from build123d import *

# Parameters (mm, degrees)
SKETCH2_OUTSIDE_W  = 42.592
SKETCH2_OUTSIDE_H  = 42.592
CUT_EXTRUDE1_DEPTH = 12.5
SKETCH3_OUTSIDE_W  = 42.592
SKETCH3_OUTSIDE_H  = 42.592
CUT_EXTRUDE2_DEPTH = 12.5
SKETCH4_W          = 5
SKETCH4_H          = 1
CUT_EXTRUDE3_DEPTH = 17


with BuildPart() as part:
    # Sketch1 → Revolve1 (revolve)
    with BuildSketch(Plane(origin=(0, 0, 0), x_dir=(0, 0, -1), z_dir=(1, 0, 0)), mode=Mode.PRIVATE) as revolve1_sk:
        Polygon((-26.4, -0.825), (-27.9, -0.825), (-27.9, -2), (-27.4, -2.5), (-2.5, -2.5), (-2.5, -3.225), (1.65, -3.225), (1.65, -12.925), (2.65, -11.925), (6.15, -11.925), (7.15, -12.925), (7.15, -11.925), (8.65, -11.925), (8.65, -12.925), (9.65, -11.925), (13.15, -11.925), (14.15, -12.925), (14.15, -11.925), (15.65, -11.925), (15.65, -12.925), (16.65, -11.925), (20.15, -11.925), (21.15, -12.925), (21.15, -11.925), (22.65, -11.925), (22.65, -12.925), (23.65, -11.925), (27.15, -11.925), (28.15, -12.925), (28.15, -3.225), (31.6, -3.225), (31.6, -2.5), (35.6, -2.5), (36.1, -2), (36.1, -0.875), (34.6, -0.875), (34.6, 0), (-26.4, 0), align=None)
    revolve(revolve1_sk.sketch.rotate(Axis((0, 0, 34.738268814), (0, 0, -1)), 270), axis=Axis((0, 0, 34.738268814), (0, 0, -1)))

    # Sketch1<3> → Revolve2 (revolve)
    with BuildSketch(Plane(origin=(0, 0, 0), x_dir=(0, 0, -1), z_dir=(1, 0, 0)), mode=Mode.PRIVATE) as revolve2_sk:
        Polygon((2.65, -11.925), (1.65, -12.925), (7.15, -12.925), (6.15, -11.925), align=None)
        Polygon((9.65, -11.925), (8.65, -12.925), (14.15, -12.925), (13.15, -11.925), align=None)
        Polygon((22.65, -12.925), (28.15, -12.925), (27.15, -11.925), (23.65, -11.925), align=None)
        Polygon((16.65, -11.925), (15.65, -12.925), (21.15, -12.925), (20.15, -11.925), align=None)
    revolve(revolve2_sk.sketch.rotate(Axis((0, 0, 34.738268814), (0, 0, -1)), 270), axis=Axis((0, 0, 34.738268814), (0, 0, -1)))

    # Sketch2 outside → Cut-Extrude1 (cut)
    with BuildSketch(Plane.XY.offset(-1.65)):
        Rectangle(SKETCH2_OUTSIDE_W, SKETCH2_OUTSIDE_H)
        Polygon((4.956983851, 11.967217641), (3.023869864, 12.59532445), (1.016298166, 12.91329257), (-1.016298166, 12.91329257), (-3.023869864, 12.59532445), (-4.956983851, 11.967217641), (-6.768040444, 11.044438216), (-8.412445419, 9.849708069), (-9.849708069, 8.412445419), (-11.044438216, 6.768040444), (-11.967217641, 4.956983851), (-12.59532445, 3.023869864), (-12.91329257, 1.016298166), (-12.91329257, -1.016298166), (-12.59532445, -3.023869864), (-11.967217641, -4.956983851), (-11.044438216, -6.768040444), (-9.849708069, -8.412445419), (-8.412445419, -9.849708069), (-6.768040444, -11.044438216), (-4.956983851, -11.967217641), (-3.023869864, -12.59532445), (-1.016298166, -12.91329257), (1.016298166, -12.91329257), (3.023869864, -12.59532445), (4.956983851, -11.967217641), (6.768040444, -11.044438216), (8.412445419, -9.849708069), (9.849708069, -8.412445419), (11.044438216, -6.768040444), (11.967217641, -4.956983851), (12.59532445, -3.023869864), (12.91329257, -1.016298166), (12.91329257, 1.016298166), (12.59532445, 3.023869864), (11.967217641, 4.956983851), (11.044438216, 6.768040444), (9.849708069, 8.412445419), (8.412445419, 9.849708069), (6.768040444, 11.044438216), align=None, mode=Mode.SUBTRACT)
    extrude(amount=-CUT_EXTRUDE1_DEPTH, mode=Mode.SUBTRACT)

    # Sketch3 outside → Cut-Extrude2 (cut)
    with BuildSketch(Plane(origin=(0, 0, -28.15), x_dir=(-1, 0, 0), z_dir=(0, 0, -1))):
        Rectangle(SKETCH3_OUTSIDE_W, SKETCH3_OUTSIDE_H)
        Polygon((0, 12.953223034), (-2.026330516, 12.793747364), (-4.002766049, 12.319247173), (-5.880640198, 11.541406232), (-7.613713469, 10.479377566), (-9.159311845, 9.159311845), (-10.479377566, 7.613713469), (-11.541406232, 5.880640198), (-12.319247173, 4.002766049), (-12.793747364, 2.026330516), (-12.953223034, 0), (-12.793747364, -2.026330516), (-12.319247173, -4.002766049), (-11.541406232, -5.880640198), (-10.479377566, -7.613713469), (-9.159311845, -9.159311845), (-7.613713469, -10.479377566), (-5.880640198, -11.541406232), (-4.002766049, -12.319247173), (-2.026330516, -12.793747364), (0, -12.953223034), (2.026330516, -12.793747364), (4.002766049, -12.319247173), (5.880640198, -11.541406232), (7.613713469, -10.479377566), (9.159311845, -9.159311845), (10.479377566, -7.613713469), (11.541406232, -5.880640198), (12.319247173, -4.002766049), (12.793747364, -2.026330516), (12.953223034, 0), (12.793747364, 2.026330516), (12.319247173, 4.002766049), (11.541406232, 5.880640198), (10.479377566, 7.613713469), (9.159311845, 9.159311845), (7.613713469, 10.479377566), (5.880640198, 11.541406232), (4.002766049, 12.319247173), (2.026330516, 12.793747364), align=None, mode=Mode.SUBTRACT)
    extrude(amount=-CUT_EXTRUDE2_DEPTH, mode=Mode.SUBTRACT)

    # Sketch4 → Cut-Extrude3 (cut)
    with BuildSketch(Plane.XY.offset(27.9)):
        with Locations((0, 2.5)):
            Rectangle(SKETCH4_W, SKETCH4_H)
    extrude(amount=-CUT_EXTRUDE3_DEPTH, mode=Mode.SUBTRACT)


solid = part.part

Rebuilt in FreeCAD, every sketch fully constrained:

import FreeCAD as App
import Part
import Sketcher

V = App.Vector
Q = App.Units.Quantity

doc = App.newDocument("Part")
body = doc.addObject("PartDesign::Body", "Body")

sketch1 = doc.addObject("Sketcher::SketchObject", "Sketch")
body.addObject(sketch1)
sketch1.AttachmentSupport = (doc.YZ_Plane, [""])
sketch1.MapMode = "FlatFace"
sketch1.addGeometry([
    Part.LineSegment(V(-0.8, 26.4, 0), V(-0.8, 27.9, 0)),
    Part.LineSegment(V(-0.8, 27.9, 0), V(-2, 27.9, 0)),
    Part.LineSegment(V(-2, 27.9, 0), V(-2.5, 27.4, 0)),
    Part.LineSegment(V(-2.5, 27.4, 0), V(-2.5, 2.5, 0)),
    Part.LineSegment(V(-2.5, 2.5, 0), V(-3.2, 2.5, 0)),
    Part.LineSegment(V(-3.2, 2.5, 0), V(-3.2, -1.6, 0)),
    Part.LineSegment(V(-3.2, -1.6, 0), V(-12.9, -1.6, 0)),
    Part.LineSegment(V(-12.9, -1.6, 0), V(-11.9, -2.6, 0)),
    Part.LineSegment(V(-11.9, -2.6, 0), V(-11.9, -6.2, 0)),
    Part.LineSegment(V(-11.9, -6.2, 0), V(-12.9, -7.2, 0)),
    Part.LineSegment(V(-12.9, -7.2, 0), V(-11.9, -7.2, 0)),
    Part.LineSegment(V(-11.9, -7.2, 0), V(-11.9, -8.7, 0)),
    Part.LineSegment(V(-11.9, -8.7, 0), V(-12.9, -8.7, 0)),
    Part.LineSegment(V(-12.9, -8.7, 0), V(-11.9, -9.7, 0)),
    Part.LineSegment(V(-11.9, -9.7, 0), V(-11.9, -13.2, 0)),
    Part.LineSegment(V(-11.9, -13.2, 0), V(-12.9, -14.2, 0)),
    Part.LineSegment(V(-12.9, -14.2, 0), V(-11.9, -14.2, 0)),
    Part.LineSegment(V(-11.9, -14.2, 0), V(-11.9, -15.7, 0)),
    Part.LineSegment(V(-11.9, -15.7, 0), V(-12.9, -15.7, 0)),
    Part.LineSegment(V(-12.9, -15.7, 0), V(-11.9, -16.6, 0)),
    Part.LineSegment(V(-11.9, -16.6, 0), V(-11.9, -20.1, 0)),
    Part.LineSegment(V(-11.9, -20.1, 0), V(-12.9, -21.1, 0)),
    Part.LineSegment(V(-12.9, -21.1, 0), V(-11.9, -21.1, 0)),
    Part.LineSegment(V(-11.9, -21.1, 0), V(-11.9, -22.6, 0)),
    Part.LineSegment(V(-11.9, -22.6, 0), V(-12.9, -22.6, 0)),
    Part.LineSegment(V(-12.9, -22.6, 0), V(-11.9, -23.6, 0)),
    Part.LineSegment(V(-11.9, -23.6, 0), V(-11.9, -27.1, 0)),
    Part.LineSegment(V(-11.9, -27.1, 0), V(-12.9, -28.1, 0)),
    Part.LineSegment(V(-12.9, -28.1, 0), V(-3.2, -28.1, 0)),
    Part.LineSegment(V(-3.2, -28.1, 0), V(-3.2, -31.6, 0)),
    Part.LineSegment(V(-3.2, -31.6, 0), V(-2.5, -31.6, 0)),
    Part.LineSegment(V(-2.5, -31.6, 0), V(-2.5, -35.6, 0)),
    Part.LineSegment(V(-2.5, -35.6, 0), V(-2, -36.1, 0)),
    Part.LineSegment(V(-2, -36.1, 0), V(-0.9, -36.1, 0)),
    Part.LineSegment(V(-0.9, -36.1, 0), V(-0.9, -34.6, 0)),
    Part.LineSegment(V(-0.9, -34.6, 0), V(0, -34.6, 0)),
    Part.LineSegment(V(0, -34.6, 0), V(0, 26.4, 0)),
    Part.LineSegment(V(0, 26.4, 0), V(-0.8, 26.4, 0)),
], False)
sketch1.addConstraint([
    Sketcher.Constraint("Coincident", 0, 2, 1, 1),
    Sketcher.Constraint("Coincident", 1, 2, 2, 1),
    Sketcher.Constraint("Coincident", 2, 2, 3, 1),
    Sketcher.Constraint("Coincident", 3, 2, 4, 1),
    Sketcher.Constraint("Coincident", 4, 2, 5, 1),
    Sketcher.Constraint("Coincident", 5, 2, 6, 1),
    Sketcher.Constraint("Coincident", 6, 2, 7, 1),
    Sketcher.Constraint("Coincident", 7, 2, 8, 1),
    Sketcher.Constraint("Coincident", 8, 2, 9, 1),
    Sketcher.Constraint("Coincident", 9, 2, 10, 1),
    Sketcher.Constraint("Coincident", 10, 2, 11, 1),
    Sketcher.Constraint("Coincident", 11, 2, 12, 1),
    Sketcher.Constraint("Coincident", 12, 2, 13, 1),
    Sketcher.Constraint("Coincident", 13, 2, 14, 1),
    Sketcher.Constraint("Coincident", 14, 2, 15, 1),
    Sketcher.Constraint("Coincident", 15, 2, 16, 1),
    Sketcher.Constraint("Coincident", 16, 2, 17, 1),
    Sketcher.Constraint("Coincident", 17, 2, 18, 1),
    Sketcher.Constraint("Coincident", 18, 2, 19, 1),
    Sketcher.Constraint("Coincident", 19, 2, 20, 1),
    Sketcher.Constraint("Coincident", 20, 2, 21, 1),
    Sketcher.Constraint("Coincident", 21, 2, 22, 1),
    Sketcher.Constraint("Coincident", 22, 2, 23, 1),
    Sketcher.Constraint("Coincident", 23, 2, 24, 1),
    Sketcher.Constraint("Coincident", 24, 2, 25, 1),
    Sketcher.Constraint("Coincident", 25, 2, 26, 1),
    Sketcher.Constraint("Coincident", 26, 2, 27, 1),
    Sketcher.Constraint("Coincident", 27, 2, 28, 1),
    Sketcher.Constraint("Coincident", 28, 2, 29, 1),
    Sketcher.Constraint("Coincident", 29, 2, 30, 1),
    Sketcher.Constraint("Coincident", 30, 2, 31, 1),
    Sketcher.Constraint("Coincident", 31, 2, 32, 1),
    Sketcher.Constraint("Coincident", 32, 2, 33, 1),
    Sketcher.Constraint("Coincident", 33, 2, 34, 1),
    Sketcher.Constraint("Coincident", 34, 2, 35, 1),
    Sketcher.Constraint("Coincident", 35, 2, 36, 1),
    Sketcher.Constraint("Coincident", 36, 2, 37, 1),
    Sketcher.Constraint("Coincident", 37, 2, 0, 1),
    Sketcher.Constraint("Vertical", 0),
    Sketcher.Constraint("Horizontal", 1),
    Sketcher.Constraint("Vertical", 3),
    Sketcher.Constraint("Horizontal", 4),
    Sketcher.Constraint("Vertical", 5),
    Sketcher.Constraint("Horizontal", 6),
    Sketcher.Constraint("Vertical", 8),
    Sketcher.Constraint("Horizontal", 10),
    Sketcher.Constraint("Vertical", 11),
    Sketcher.Constraint("Horizontal", 12),
    Sketcher.Constraint("Vertical", 14),
    Sketcher.Constraint("Horizontal", 16),
    Sketcher.Constraint("Vertical", 17),
    Sketcher.Constraint("Horizontal", 18),
    Sketcher.Constraint("Vertical", 20),
    Sketcher.Constraint("Horizontal", 22),
    Sketcher.Constraint("Vertical", 23),
    Sketcher.Constraint("Horizontal", 24),
    Sketcher.Constraint("Vertical", 26),
    Sketcher.Constraint("Horizontal", 28),
    Sketcher.Constraint("Vertical", 29),
    Sketcher.Constraint("Horizontal", 30),
    Sketcher.Constraint("Vertical", 31),
    Sketcher.Constraint("Horizontal", 33),
    Sketcher.Constraint("Vertical", 34),
    Sketcher.Constraint("Horizontal", 35),
    Sketcher.Constraint("Vertical", 36),
    Sketcher.Constraint("Horizontal", 37),
    Sketcher.Constraint("PointOnObject", 35, 2, -2),
    Sketcher.Constraint("Perpendicular", 2, 7),
    Sketcher.Constraint("Perpendicular", 7, 9),
    Sketcher.Constraint("Perpendicular", 9, 13),
    Sketcher.Constraint("Perpendicular", 13, 15),
    Sketcher.Constraint("Perpendicular", 15, 19),
    Sketcher.Constraint("Perpendicular", 19, 21),
    Sketcher.Constraint("Perpendicular", 21, 25),
    Sketcher.Constraint("Perpendicular", 25, 27),
    Sketcher.Constraint("Perpendicular", 27, 32),
    Sketcher.Constraint("Vertical", 6, 2, 9, 2),
    Sketcher.Constraint("Vertical", 8, 2, 10, 2),
    Sketcher.Constraint("Vertical", 9, 2, 12, 2),
    Sketcher.Constraint("Vertical", 11, 2, 13, 2),
    Sketcher.Constraint("Vertical", 12, 2, 15, 2),
    Sketcher.Constraint("Vertical", 14, 2, 16, 2),
    Sketcher.Constraint("Vertical", 15, 2, 18, 2),
    Sketcher.Constraint("Vertical", 17, 2, 19, 2),
    Sketcher.Constraint("Vertical", 18, 2, 21, 2),
    Sketcher.Constraint("Vertical", 20, 2, 22, 2),
    Sketcher.Constraint("Vertical", 21, 2, 24, 2),
    Sketcher.Constraint("Vertical", 23, 2, 25, 2),
    Sketcher.Constraint("Vertical", 24, 2, 27, 2),
    Sketcher.Constraint("Vertical", 5, 2, 28, 2),
    Sketcher.Constraint("Vertical", 3, 2, 30, 2),
    Sketcher.Constraint("Vertical", 1, 2, 32, 2),
    Sketcher.Constraint("Equal", 0, 11),
    Sketcher.Constraint("Equal", 8, 14),
    Sketcher.Constraint("Equal", 11, 17),
    Sketcher.Constraint("Equal", 14, 20),
    Sketcher.Constraint("Equal", 17, 23),
    Sketcher.Constraint("Equal", 20, 26),
    Sketcher.Constraint("Equal", 23, 34),
    Sketcher.Constraint("Equal", 7, 9),
    Sketcher.Constraint("DistanceX", 10, 1, 10, 2, Q("1 mm")),
    Sketcher.Constraint("DistanceY", 31, 2, 31, 1, Q("4 mm")),
    Sketcher.Constraint("DistanceY", 36, 1, 36, 2, Q("61 mm")),
    Sketcher.Constraint("DistanceX", 6, 2, 6, 1, Q("9.7 mm")),
    Sketcher.Constraint("DistanceY", 0, 1, 0, 2, Q("1.5 mm")),
    Sketcher.Constraint("DistanceY", 3, 2, 3, 1, Q("24.9 mm")),
    Sketcher.Constraint("DistanceY", 8, 2, 8, 1, Q("3.5 mm")),
    Sketcher.Constraint("DistanceX", 1, 2, -1, 1, Q("2 mm")),
    Sketcher.Constraint("DistanceY", 31, 2, 34, 2, Q("1 mm")),
    Sketcher.Constraint("DistanceY", 5, 2, 5, 1, Q("4.15 mm")),
    Sketcher.Constraint("DistanceY", -1, 1, 0, 2, Q("27.9 mm")),
    Sketcher.Constraint("DistanceX", 4, 2, 0, 2, Q("2.4 mm")),
    Sketcher.Constraint("DistanceX", 1, 2, 1, 1, Q("1.175 mm")),
    Sketcher.Constraint("DistanceX", 33, 1, 33, 2, Q("1.125 mm")),
])
revolution = doc.addObject("PartDesign::Revolution", "Revolution")
body.addObject(revolution)
revolution.Profile = sketch1
revolution.ReferenceAxis = (sketch1, ["V_Axis"])
revolution.Angle = 360

sketch2 = doc.addObject("Sketcher::SketchObject", "Sketch001")
body.addObject(sketch2)
sketch2.AttachmentSupport = (doc.YZ_Plane, [""])
sketch2.MapMode = "FlatFace"
sketch2.addGeometry([
    Part.LineSegment(V(-11.9, -2.6, 0), V(-12.9, -1.6, 0)),
    Part.LineSegment(V(-12.9, -1.6, 0), V(-12.9, -7.2, 0)),
    Part.LineSegment(V(-12.9, -7.2, 0), V(-11.9, -6.2, 0)),
    Part.LineSegment(V(-11.9, -6.2, 0), V(-11.9, -2.6, 0)),
    Part.LineSegment(V(-11.9, -9.7, 0), V(-12.9, -8.7, 0)),
    Part.LineSegment(V(-12.9, -8.7, 0), V(-12.9, -14.2, 0)),
    Part.LineSegment(V(-12.9, -14.2, 0), V(-11.9, -13.2, 0)),
    Part.LineSegment(V(-11.9, -13.2, 0), V(-11.9, -9.7, 0)),
    Part.LineSegment(V(-12.9, -22.6, 0), V(-12.9, -28.1, 0)),
    Part.LineSegment(V(-12.9, -28.1, 0), V(-11.9, -27.1, 0)),
    Part.LineSegment(V(-11.9, -27.1, 0), V(-11.9, -23.6, 0)),
    Part.LineSegment(V(-11.9, -23.6, 0), V(-12.9, -22.6, 0)),
    Part.LineSegment(V(-11.9, -16.6, 0), V(-12.9, -15.7, 0)),
    Part.LineSegment(V(-12.9, -15.7, 0), V(-12.9, -21.1, 0)),
    Part.LineSegment(V(-12.9, -21.1, 0), V(-11.9, -20.1, 0)),
    Part.LineSegment(V(-11.9, -20.1, 0), V(-11.9, -16.6, 0)),
], False)
sketch2.addConstraint([
    Sketcher.Constraint("Coincident", 0, 2, 1, 1),
    Sketcher.Constraint("Coincident", 1, 2, 2, 1),
    Sketcher.Constraint("Coincident", 2, 2, 3, 1),
    Sketcher.Constraint("Coincident", 3, 2, 0, 1),
    Sketcher.Constraint("Coincident", 4, 2, 5, 1),
    Sketcher.Constraint("Coincident", 5, 2, 6, 1),
    Sketcher.Constraint("Coincident", 6, 2, 7, 1),
    Sketcher.Constraint("Coincident", 7, 2, 4, 1),
    Sketcher.Constraint("Coincident", 8, 2, 9, 1),
    Sketcher.Constraint("Coincident", 9, 2, 10, 1),
    Sketcher.Constraint("Coincident", 10, 2, 11, 1),
    Sketcher.Constraint("Coincident", 11, 2, 8, 1),
    Sketcher.Constraint("Coincident", 12, 2, 13, 1),
    Sketcher.Constraint("Coincident", 13, 2, 14, 1),
    Sketcher.Constraint("Coincident", 14, 2, 15, 1),
    Sketcher.Constraint("Coincident", 15, 2, 12, 1),
    Sketcher.Constraint("Vertical", 1),
    Sketcher.Constraint("Vertical", 3),
    Sketcher.Constraint("Vertical", 5),
    Sketcher.Constraint("Vertical", 7),
    Sketcher.Constraint("Vertical", 8),
    Sketcher.Constraint("Vertical", 10),
    Sketcher.Constraint("Vertical", 13),
    Sketcher.Constraint("Vertical", 15),
    Sketcher.Constraint("Perpendicular", 0, 2),
    Sketcher.Constraint("Perpendicular", 2, 4),
    Sketcher.Constraint("Perpendicular", 4, 6),
    Sketcher.Constraint("Parallel", 6, 9),
    Sketcher.Constraint("Perpendicular", 9, 11),
    Sketcher.Constraint("Parallel", 11, 12),
    Sketcher.Constraint("Perpendicular", 12, 14),
    Sketcher.Constraint("Vertical", 1, 2, 4, 2),
    Sketcher.Constraint("Vertical", 3, 2, 6, 2),
    Sketcher.Constraint("Vertical", 5, 2, 8, 2),
    Sketcher.Constraint("Vertical", 7, 2, 9, 2),
    Sketcher.Constraint("Vertical", 11, 2, 12, 2),
    Sketcher.Constraint("Vertical", 10, 2, 14, 2),
    Sketcher.Constraint("Equal", 1, 5),
    Sketcher.Constraint("Equal", 5, 8),
    Sketcher.Constraint("Equal", 8, 13),
    Sketcher.Constraint("Equal", 0, 2),
    Sketcher.Constraint("DistanceY", 1, 2, 1, 1, Q("5.5 mm")),
    Sketcher.Constraint("DistanceY", 3, 1, 3, 2, Q("3.5 mm")),
    Sketcher.Constraint("DistanceY", 4, 2, 3, 2, Q("6 mm")),
    Sketcher.Constraint("DistanceY", 8, 2, 5, 2, Q("14 mm")),
    Sketcher.Constraint("DistanceY", 12, 2, 7, 2, Q("6 mm")),
    Sketcher.Constraint("DistanceY", 0, 2, -1, 1, Q("1.65 mm")),
    Sketcher.Constraint("DistanceX", 0, 2, -1, 1, Q("12.925 mm")),
])
revolution2 = doc.addObject("PartDesign::Revolution", "Revolution001")
body.addObject(revolution2)
revolution2.Profile = sketch2
revolution2.ReferenceAxis = (sketch2, ["V_Axis"])
revolution2.Angle = 360

sketch3 = doc.addObject("Sketcher::SketchObject", "Sketch002")
body.addObject(sketch3)
sketch3.AttachmentSupport = (doc.XY_Plane, [""])
sketch3.MapMode = "FlatFace"
sketch3.AttachmentOffset = App.Placement(V(0, 0, -1.65), App.Rotation())
sketch3.addGeometry([
    Part.LineSegment(V(-21.3, 21.3, 0), V(-21.3, -21.3, 0)),
    Part.LineSegment(V(-21.3, -21.3, 0), V(21.3, -21.3, 0)),
    Part.LineSegment(V(21.3, -21.3, 0), V(21.3, 21.3, 0)),
    Part.LineSegment(V(21.3, 21.3, 0), V(-21.3, 21.3, 0)),
    Part.LineSegment(V(3, 12.6, 0), V(5, 12, 0)),
    Part.LineSegment(V(5, 12, 0), V(6.8, 11, 0)),
    Part.LineSegment(V(6.8, 11, 0), V(8.4, 9.8, 0)),
    Part.LineSegment(V(8.4, 9.8, 0), V(9.8, 8.4, 0)),
    Part.LineSegment(V(9.8, 8.4, 0), V(11, 6.8, 0)),
    Part.LineSegment(V(11, 6.8, 0), V(12, 5, 0)),
    Part.LineSegment(V(12, 5, 0), V(12.6, 3, 0)),
    Part.LineSegment(V(12.6, 3, 0), V(12.9, 1, 0)),
    Part.LineSegment(V(12.9, 1, 0), V(12.9, -1, 0)),
    Part.LineSegment(V(12.9, -1, 0), V(12.6, -3, 0)),
    Part.LineSegment(V(12.6, -3, 0), V(12, -5, 0)),
    Part.LineSegment(V(12, -5, 0), V(11, -6.8, 0)),
    Part.LineSegment(V(11, -6.8, 0), V(9.8, -8.4, 0)),
    Part.LineSegment(V(9.8, -8.4, 0), V(8.4, -9.8, 0)),
    Part.LineSegment(V(8.4, -9.8, 0), V(6.8, -11, 0)),
    Part.LineSegment(V(6.8, -11, 0), V(5, -12, 0)),
    Part.LineSegment(V(5, -12, 0), V(3, -12.6, 0)),
    Part.LineSegment(V(3, -12.6, 0), V(1, -12.9, 0)),
    Part.LineSegment(V(1, -12.9, 0), V(-1, -12.9, 0)),
    Part.LineSegment(V(-1, -12.9, 0), V(-3, -12.6, 0)),
    Part.LineSegment(V(-3, -12.6, 0), V(-5, -12, 0)),
    Part.LineSegment(V(-5, -12, 0), V(-6.8, -11, 0)),
    Part.LineSegment(V(-6.8, -11, 0), V(-8.4, -9.8, 0)),
    Part.LineSegment(V(-8.4, -9.8, 0), V(-9.8, -8.4, 0)),
    Part.LineSegment(V(-9.8, -8.4, 0), V(-11, -6.8, 0)),
    Part.LineSegment(V(-11, -6.8, 0), V(-12, -5, 0)),
    Part.LineSegment(V(-12, -5, 0), V(-12.6, -3, 0)),
    Part.LineSegment(V(-12.6, -3, 0), V(-12.9, -1, 0)),
    Part.LineSegment(V(-12.9, -1, 0), V(-12.9, 1, 0)),
    Part.LineSegment(V(-12.9, 1, 0), V(-12.6, 3, 0)),
    Part.LineSegment(V(-12.6, 3, 0), V(-12, 5, 0)),
    Part.LineSegment(V(-12, 5, 0), V(-11, 6.8, 0)),
    Part.LineSegment(V(-11, 6.8, 0), V(-9.8, 8.4, 0)),
    Part.LineSegment(V(-9.8, 8.4, 0), V(-8.4, 9.8, 0)),
    Part.LineSegment(V(-8.4, 9.8, 0), V(-6.8, 11, 0)),
    Part.LineSegment(V(-6.8, 11, 0), V(-5, 12, 0)),
    Part.LineSegment(V(-5, 12, 0), V(-3, 12.6, 0)),
    Part.LineSegment(V(-3, 12.6, 0), V(-1, 12.9, 0)),
    Part.LineSegment(V(-1, 12.9, 0), V(1, 12.9, 0)),
    Part.LineSegment(V(1, 12.9, 0), V(3, 12.6, 0)),
], False)
sketch3.addConstraint([
    Sketcher.Constraint("Coincident", 0, 2, 1, 1),
    Sketcher.Constraint("Coincident", 1, 2, 2, 1),
    Sketcher.Constraint("Coincident", 2, 2, 3, 1),
    Sketcher.Constraint("Coincident", 3, 2, 0, 1),
    Sketcher.Constraint("Coincident", 4, 2, 5, 1),
    Sketcher.Constraint("Coincident", 5, 2, 6, 1),
    Sketcher.Constraint("Coincident", 6, 2, 7, 1),
    Sketcher.Constraint("Coincident", 7, 2, 8, 1),
    Sketcher.Constraint("Coincident", 8, 2, 9, 1),
    Sketcher.Constraint("Coincident", 9, 2, 10, 1),
    Sketcher.Constraint("Coincident", 10, 2, 11, 1),
    Sketcher.Constraint("Coincident", 11, 2, 12, 1),
    Sketcher.Constraint("Coincident", 12, 2, 13, 1),
    Sketcher.Constraint("Coincident", 13, 2, 14, 1),
    Sketcher.Constraint("Coincident", 14, 2, 15, 1),
    Sketcher.Constraint("Coincident", 15, 2, 16, 1),
    Sketcher.Constraint("Coincident", 16, 2, 17, 1),
    Sketcher.Constraint("Coincident", 17, 2, 18, 1),
    Sketcher.Constraint("Coincident", 18, 2, 19, 1),
    Sketcher.Constraint("Coincident", 19, 2, 20, 1),
    Sketcher.Constraint("Coincident", 20, 2, 21, 1),
    Sketcher.Constraint("Coincident", 21, 2, 22, 1),
    Sketcher.Constraint("Coincident", 22, 2, 23, 1),
    Sketcher.Constraint("Coincident", 23, 2, 24, 1),
    Sketcher.Constraint("Coincident", 24, 2, 25, 1),
    Sketcher.Constraint("Coincident", 25, 2, 26, 1),
    Sketcher.Constraint("Coincident", 26, 2, 27, 1),
    Sketcher.Constraint("Coincident", 27, 2, 28, 1),
    Sketcher.Constraint("Coincident", 28, 2, 29, 1),
    Sketcher.Constraint("Coincident", 29, 2, 30, 1),
    Sketcher.Constraint("Coincident", 30, 2, 31, 1),
    Sketcher.Constraint("Coincident", 31, 2, 32, 1),
    Sketcher.Constraint("Coincident", 32, 2, 33, 1),
    Sketcher.Constraint("Coincident", 33, 2, 34, 1),
    Sketcher.Constraint("Coincident", 34, 2, 35, 1),
    Sketcher.Constraint("Coincident", 35, 2, 36, 1),
    Sketcher.Constraint("Coincident", 36, 2, 37, 1),
    Sketcher.Constraint("Coincident", 37, 2, 38, 1),
    Sketcher.Constraint("Coincident", 38, 2, 39, 1),
    Sketcher.Constraint("Coincident", 39, 2, 40, 1),
    Sketcher.Constraint("Coincident", 40, 2, 41, 1),
    Sketcher.Constraint("Coincident", 41, 2, 42, 1),
    Sketcher.Constraint("Coincident", 42, 2, 43, 1),
    Sketcher.Constraint("Coincident", 43, 2, 4, 1),
    Sketcher.Constraint("Vertical", 0),
    Sketcher.Constraint("Horizontal", 1),
    Sketcher.Constraint("Vertical", 2),
    Sketcher.Constraint("Horizontal", 3),
    Sketcher.Constraint("Vertical", 12),
    Sketcher.Constraint("Horizontal", 22),
    Sketcher.Constraint("Vertical", 32),
    Sketcher.Constraint("Horizontal", 42),
    Sketcher.Constraint("Symmetric", 0, 2, 2, 2, -1, 1),
    Sketcher.Constraint("Symmetric", 4, 2, 24, 2, -1, 1),
    Sketcher.Constraint("Symmetric", 5, 2, 25, 2, -1, 1),
    Sketcher.Constraint("Symmetric", 6, 2, 26, 2, -1, 1),
    Sketcher.Constraint("Symmetric", 7, 2, 27, 2, -1, 1),
    Sketcher.Constraint("Symmetric", 8, 2, 28, 2, -1, 1),
    Sketcher.Constraint("Symmetric", 9, 2, 29, 2, -1, 1),
    Sketcher.Constraint("Symmetric", 10, 2, 30, 2, -1, 1),
    Sketcher.Constraint("Symmetric", 11, 2, 31, 2, -1, 1),
    Sketcher.Constraint("Symmetric", 13, 2, 33, 2, -1, 1),
    Sketcher.Constraint("Symmetric", 14, 2, 34, 2, -1, 1),
    Sketcher.Constraint("Symmetric", 15, 2, 35, 2, -1, 1),
    Sketcher.Constraint("Symmetric", 16, 2, 36, 2, -1, 1),
    Sketcher.Constraint("Symmetric", 17, 2, 37, 2, -1, 1),
    Sketcher.Constraint("Symmetric", 18, 2, 38, 2, -1, 1),
    Sketcher.Constraint("Symmetric", 19, 2, 39, 2, -1, 1),
    Sketcher.Constraint("Symmetric", 20, 2, 40, 2, -1, 1),
    Sketcher.Constraint("Symmetric", 21, 2, 41, 2, -1, 1),
    Sketcher.Constraint("Symmetric", 23, 2, 43, 2, -1, 1),
    Sketcher.Constraint("Symmetric", 20, 2, 23, 2, -2),
    Sketcher.Constraint("Symmetric", 19, 2, 24, 2, -2),
    Sketcher.Constraint("Symmetric", 18, 2, 25, 2, -2),
    Sketcher.Constraint("Symmetric", 17, 2, 26, 2, -2),
    Sketcher.Constraint("Symmetric", 16, 2, 27, 2, -2),
    Sketcher.Constraint("Symmetric", 15, 2, 28, 2, -2),
    Sketcher.Constraint("Symmetric", 14, 2, 29, 2, -2),
    Sketcher.Constraint("Symmetric", 13, 2, 30, 2, -2),
    Sketcher.Constraint("Perpendicular", 4, 14),
    Sketcher.Constraint("Perpendicular", 5, 15),
    Sketcher.Constraint("Perpendicular", 6, 16),
    Sketcher.Constraint("Perpendicular", 7, 17),
    Sketcher.Constraint("Perpendicular", 11, 21),
    Sketcher.Constraint("Perpendicular", 13, 23),
    Sketcher.Constraint("Perpendicular", 23, 33),
    Sketcher.Constraint("Perpendicular", 33, 43),
    Sketcher.Constraint("Horizontal", 12, 2, 31, 2),
    Sketcher.Constraint("Equal", 3, 0),
    Sketcher.Constraint("Equal", 42, 12),
    Sketcher.Constraint("Equal", 4, 5),
    Sketcher.Constraint("Equal", 5, 6),
    Sketcher.Constraint("Equal", 6, 7),
    Sketcher.Constraint("Equal", 7, 8),
    Sketcher.Constraint("Equal", 8, 9),
    Sketcher.Constraint("Equal", 9, 10),
    Sketcher.Constraint("Equal", 10, 11),
    Sketcher.Constraint("Equal", 20, 21),
    Sketcher.Constraint("Angle", 4, Q("-18 deg")),
    Sketcher.Constraint("Angle", 5, Q("-27 deg")),
    Sketcher.Constraint("Angle", 6, Q("-36 deg")),
    Sketcher.Constraint("Angle", 11, Q("-81 deg")),
    Sketcher.Constraint("DistanceX", 1, 1, 1, 2, Q("42.592 mm")),
    Sketcher.Constraint("DistanceY", -1, 1, 11, 2, Q("1.016298 mm")),
    Sketcher.Constraint("DistanceX", -1, 1, 5, 2, Q("6.76804 mm")),
])
pocket1 = doc.addObject("PartDesign::Pocket", "Pocket")
body.addObject(pocket1)
pocket1.Profile = sketch3
pocket1.Length = 12.5

sketch4 = doc.addObject("Sketcher::SketchObject", "Sketch003")
body.addObject(sketch4)
sketch4.AttachmentSupport = (doc.XY_Plane, [""])
sketch4.MapMode = "FlatFace"
sketch4.AttachmentOffset = App.Placement(V(0, 0, -28.15), App.Rotation())
sketch4.addGeometry([
    Part.LineSegment(V(21.3, 21.3, 0), V(21.3, -21.3, 0)),
    Part.LineSegment(V(21.3, -21.3, 0), V(-21.3, -21.3, 0)),
    Part.LineSegment(V(-21.3, -21.3, 0), V(-21.3, 21.3, 0)),
    Part.LineSegment(V(-21.3, 21.3, 0), V(21.3, 21.3, 0)),
    Part.LineSegment(V(2, 12.8, 0), V(0, 13, 0)),
    Part.LineSegment(V(0, 13, 0), V(-2, 12.8, 0)),
    Part.LineSegment(V(-2, 12.8, 0), V(-4, 12.3, 0)),
    Part.LineSegment(V(-4, 12.3, 0), V(-5.9, 11.5, 0)),
    Part.LineSegment(V(-5.9, 11.5, 0), V(-7.6, 10.5, 0)),
    Part.LineSegment(V(-7.6, 10.5, 0), V(-9.2, 9.2, 0)),
    Part.LineSegment(V(-9.2, 9.2, 0), V(-10.5, 7.6, 0)),
    Part.LineSegment(V(-10.5, 7.6, 0), V(-11.5, 5.9, 0)),
    Part.LineSegment(V(-11.5, 5.9, 0), V(-12.3, 4, 0)),
    Part.LineSegment(V(-12.3, 4, 0), V(-12.8, 2, 0)),
    Part.LineSegment(V(-12.8, 2, 0), V(-13, 0, 0)),
    Part.LineSegment(V(-13, 0, 0), V(-12.8, -2, 0)),
    Part.LineSegment(V(-12.8, -2, 0), V(-12.3, -4, 0)),
    Part.LineSegment(V(-12.3, -4, 0), V(-11.5, -5.9, 0)),
    Part.LineSegment(V(-11.5, -5.9, 0), V(-10.5, -7.6, 0)),
    Part.LineSegment(V(-10.5, -7.6, 0), V(-9.2, -9.2, 0)),
    Part.LineSegment(V(-9.2, -9.2, 0), V(-7.6, -10.5, 0)),
    Part.LineSegment(V(-7.6, -10.5, 0), V(-5.9, -11.5, 0)),
    Part.LineSegment(V(-5.9, -11.5, 0), V(-4, -12.3, 0)),
    Part.LineSegment(V(-4, -12.3, 0), V(-2, -12.8, 0)),
    Part.LineSegment(V(-2, -12.8, 0), V(0, -13, 0)),
    Part.LineSegment(V(0, -13, 0), V(2, -12.8, 0)),
    Part.LineSegment(V(2, -12.8, 0), V(4, -12.3, 0)),
    Part.LineSegment(V(4, -12.3, 0), V(5.9, -11.5, 0)),
    Part.LineSegment(V(5.9, -11.5, 0), V(7.6, -10.5, 0)),
    Part.LineSegment(V(7.6, -10.5, 0), V(9.2, -9.2, 0)),
    Part.LineSegment(V(9.2, -9.2, 0), V(10.5, -7.6, 0)),
    Part.LineSegment(V(10.5, -7.6, 0), V(11.5, -5.9, 0)),
    Part.LineSegment(V(11.5, -5.9, 0), V(12.3, -4, 0)),
    Part.LineSegment(V(12.3, -4, 0), V(12.8, -2, 0)),
    Part.LineSegment(V(12.8, -2, 0), V(13, 0, 0)),
    Part.LineSegment(V(13, 0, 0), V(12.8, 2, 0)),
    Part.LineSegment(V(12.8, 2, 0), V(12.3, 4, 0)),
    Part.LineSegment(V(12.3, 4, 0), V(11.5, 5.9, 0)),
    Part.LineSegment(V(11.5, 5.9, 0), V(10.5, 7.6, 0)),
    Part.LineSegment(V(10.5, 7.6, 0), V(9.2, 9.2, 0)),
    Part.LineSegment(V(9.2, 9.2, 0), V(7.6, 10.5, 0)),
    Part.LineSegment(V(7.6, 10.5, 0), V(5.9, 11.5, 0)),
    Part.LineSegment(V(5.9, 11.5, 0), V(4, 12.3, 0)),
    Part.LineSegment(V(4, 12.3, 0), V(2, 12.8, 0)),
], False)
sketch4.addConstraint([
    Sketcher.Constraint("Coincident", 0, 2, 1, 1),
    Sketcher.Constraint("Coincident", 1, 2, 2, 1),
    Sketcher.Constraint("Coincident", 2, 2, 3, 1),
    Sketcher.Constraint("Coincident", 3, 2, 0, 1),
    Sketcher.Constraint("Coincident", 4, 2, 5, 1),
    Sketcher.Constraint("Coincident", 5, 2, 6, 1),
    Sketcher.Constraint("Coincident", 6, 2, 7, 1),
    Sketcher.Constraint("Coincident", 7, 2, 8, 1),
    Sketcher.Constraint("Coincident", 8, 2, 9, 1),
    Sketcher.Constraint("Coincident", 9, 2, 10, 1),
    Sketcher.Constraint("Coincident", 10, 2, 11, 1),
    Sketcher.Constraint("Coincident", 11, 2, 12, 1),
    Sketcher.Constraint("Coincident", 12, 2, 13, 1),
    Sketcher.Constraint("Coincident", 13, 2, 14, 1),
    Sketcher.Constraint("Coincident", 14, 2, 15, 1),
    Sketcher.Constraint("Coincident", 15, 2, 16, 1),
    Sketcher.Constraint("Coincident", 16, 2, 17, 1),
    Sketcher.Constraint("Coincident", 17, 2, 18, 1),
    Sketcher.Constraint("Coincident", 18, 2, 19, 1),
    Sketcher.Constraint("Coincident", 19, 2, 20, 1),
    Sketcher.Constraint("Coincident", 20, 2, 21, 1),
    Sketcher.Constraint("Coincident", 21, 2, 22, 1),
    Sketcher.Constraint("Coincident", 22, 2, 23, 1),
    Sketcher.Constraint("Coincident", 23, 2, 24, 1),
    Sketcher.Constraint("Coincident", 24, 2, 25, 1),
    Sketcher.Constraint("Coincident", 25, 2, 26, 1),
    Sketcher.Constraint("Coincident", 26, 2, 27, 1),
    Sketcher.Constraint("Coincident", 27, 2, 28, 1),
    Sketcher.Constraint("Coincident", 28, 2, 29, 1),
    Sketcher.Constraint("Coincident", 29, 2, 30, 1),
    Sketcher.Constraint("Coincident", 30, 2, 31, 1),
    Sketcher.Constraint("Coincident", 31, 2, 32, 1),
    Sketcher.Constraint("Coincident", 32, 2, 33, 1),
    Sketcher.Constraint("Coincident", 33, 2, 34, 1),
    Sketcher.Constraint("Coincident", 34, 2, 35, 1),
    Sketcher.Constraint("Coincident", 35, 2, 36, 1),
    Sketcher.Constraint("Coincident", 36, 2, 37, 1),
    Sketcher.Constraint("Coincident", 37, 2, 38, 1),
    Sketcher.Constraint("Coincident", 38, 2, 39, 1),
    Sketcher.Constraint("Coincident", 39, 2, 40, 1),
    Sketcher.Constraint("Coincident", 40, 2, 41, 1),
    Sketcher.Constraint("Coincident", 41, 2, 42, 1),
    Sketcher.Constraint("Coincident", 42, 2, 43, 1),
    Sketcher.Constraint("Coincident", 43, 2, 4, 1),
    Sketcher.Constraint("Vertical", 0),
    Sketcher.Constraint("Horizontal", 1),
    Sketcher.Constraint("Vertical", 2),
    Sketcher.Constraint("Horizontal", 3),
    Sketcher.Constraint("Symmetric", 0, 2, 2, 2, -1, 1),
    Sketcher.Constraint("Symmetric", 4, 2, 24, 2, -1, 1),
    Sketcher.Constraint("Symmetric", 5, 2, 25, 2, -1, 1),
    Sketcher.Constraint("Symmetric", 6, 2, 26, 2, -1, 1),
    Sketcher.Constraint("Symmetric", 7, 2, 27, 2, -1, 1),
    Sketcher.Constraint("Symmetric", 8, 2, 28, 2, -1, 1),
    Sketcher.Constraint("Symmetric", 9, 2, 29, 2, -1, 1),
    Sketcher.Constraint("Symmetric", 10, 2, 30, 2, -1, 1),
    Sketcher.Constraint("Symmetric", 11, 2, 31, 2, -1, 1),
    Sketcher.Constraint("Symmetric", 12, 2, 32, 2, -1, 1),
    Sketcher.Constraint("Symmetric", 13, 2, 33, 2, -1, 1),
    Sketcher.Constraint("Symmetric", 14, 2, 34, 2, -1, 1),
    Sketcher.Constraint("Symmetric", 15, 2, 35, 2, -1, 1),
    Sketcher.Constraint("Symmetric", 16, 2, 36, 2, -1, 1),
    Sketcher.Constraint("Symmetric", 17, 2, 37, 2, -1, 1),
    Sketcher.Constraint("Symmetric", 18, 2, 38, 2, -1, 1),
    Sketcher.Constraint("Symmetric", 19, 2, 39, 2, -1, 1),
    Sketcher.Constraint("Symmetric", 20, 2, 40, 2, -1, 1),
    Sketcher.Constraint("Symmetric", 21, 2, 41, 2, -1, 1),
    Sketcher.Constraint("Symmetric", 22, 2, 42, 2, -1, 1),
    Sketcher.Constraint("Symmetric", 23, 2, 43, 2, -1, 1),
    Sketcher.Constraint("Symmetric", 23, 2, 25, 2, -2),
    Sketcher.Constraint("Symmetric", 22, 2, 26, 2, -2),
    Sketcher.Constraint("Symmetric", 21, 2, 27, 2, -2),
    Sketcher.Constraint("Symmetric", 20, 2, 28, 2, -2),
    Sketcher.Constraint("Symmetric", 19, 2, 29, 2, -2),
    Sketcher.Constraint("Symmetric", 18, 2, 30, 2, -2),
    Sketcher.Constraint("Symmetric", 17, 2, 31, 2, -2),
    Sketcher.Constraint("Symmetric", 16, 2, 32, 2, -2),
    Sketcher.Constraint("Symmetric", 15, 2, 33, 2, -2),
    Sketcher.Constraint("PointOnObject", 4, 2, -2),
    Sketcher.Constraint("PointOnObject", 14, 2, -1),
    Sketcher.Constraint("Perpendicular", 4, 14),
    Sketcher.Constraint("Perpendicular", 6, 16),
    Sketcher.Constraint("Perpendicular", 7, 17),
    Sketcher.Constraint("Perpendicular", 8, 18),
    Sketcher.Constraint("Perpendicular", 9, 19),
    Sketcher.Constraint("Equal", 3, 0),
    Sketcher.Constraint("Equal", 5, 6),
    Sketcher.Constraint("Equal", 6, 7),
    Sketcher.Constraint("Equal", 7, 8),
    Sketcher.Constraint("Equal", 8, 9),
    Sketcher.Constraint("Equal", 9, 10),
    Sketcher.Constraint("Equal", 10, 11),
    Sketcher.Constraint("Equal", 11, 12),
    Sketcher.Constraint("Equal", 12, 13),
    Sketcher.Constraint("Equal", 13, 14),
    Sketcher.Constraint("Angle", 4, Q("175.5 deg")),
    Sketcher.Constraint("Angle", 6, Q("-166.5 deg")),
    Sketcher.Constraint("Angle", 7, Q("-157.5 deg")),
    Sketcher.Constraint("Angle", 8, Q("-148.5 deg")),
    Sketcher.Constraint("Angle", 9, Q("-139.5 deg")),
    Sketcher.Constraint("DistanceX", 1, 2, 1, 1, Q("42.592 mm")),
    Sketcher.Constraint("DistanceY", 6, 2, 5, 2, Q("0.4745 mm")),
])
pocket2 = doc.addObject("PartDesign::Pocket", "Pocket001")
body.addObject(pocket2)
pocket2.Profile = sketch4
pocket2.Length = 12.5
pocket2.Reversed = True

sketch5 = doc.addObject("Sketcher::SketchObject", "Sketch004")
body.addObject(sketch5)
sketch5.AttachmentSupport = (doc.XY_Plane, [""])
sketch5.MapMode = "FlatFace"
sketch5.AttachmentOffset = App.Placement(V(0, 0, 27.9), App.Rotation())
sketch5.addGeometry([
    Part.LineSegment(V(-2.5, 3, 0), V(-2.5, 2, 0)),
    Part.LineSegment(V(-2.5, 2, 0), V(2.5, 2, 0)),
    Part.LineSegment(V(2.5, 2, 0), V(2.5, 3, 0)),
    Part.LineSegment(V(2.5, 3, 0), V(-2.5, 3, 0)),
], False)
sketch5.addConstraint([
    Sketcher.Constraint("Coincident", 0, 2, 1, 1),
    Sketcher.Constraint("Coincident", 1, 2, 2, 1),
    Sketcher.Constraint("Coincident", 2, 2, 3, 1),
    Sketcher.Constraint("Coincident", 3, 2, 0, 1),
    Sketcher.Constraint("Vertical", 0),
    Sketcher.Constraint("Horizontal", 1),
    Sketcher.Constraint("Vertical", 2),
    Sketcher.Constraint("Horizontal", 3),
    Sketcher.Constraint("DistanceX", 1, 1, 1, 2, Q("5 mm")),
    Sketcher.Constraint("DistanceY", 0, 2, 0, 1, Q("1 mm")),
    Sketcher.Constraint("DistanceY", -1, 1, 0, 2, Q("2 mm")),
    Sketcher.Constraint("DistanceX", 0, 2, -1, 1, Q("2.5 mm")),
])
pocket3 = doc.addObject("PartDesign::Pocket", "Pocket002")
body.addObject(pocket3)
pocket3.Profile = sketch5
pocket3.Length = 17

doc.recompute()
